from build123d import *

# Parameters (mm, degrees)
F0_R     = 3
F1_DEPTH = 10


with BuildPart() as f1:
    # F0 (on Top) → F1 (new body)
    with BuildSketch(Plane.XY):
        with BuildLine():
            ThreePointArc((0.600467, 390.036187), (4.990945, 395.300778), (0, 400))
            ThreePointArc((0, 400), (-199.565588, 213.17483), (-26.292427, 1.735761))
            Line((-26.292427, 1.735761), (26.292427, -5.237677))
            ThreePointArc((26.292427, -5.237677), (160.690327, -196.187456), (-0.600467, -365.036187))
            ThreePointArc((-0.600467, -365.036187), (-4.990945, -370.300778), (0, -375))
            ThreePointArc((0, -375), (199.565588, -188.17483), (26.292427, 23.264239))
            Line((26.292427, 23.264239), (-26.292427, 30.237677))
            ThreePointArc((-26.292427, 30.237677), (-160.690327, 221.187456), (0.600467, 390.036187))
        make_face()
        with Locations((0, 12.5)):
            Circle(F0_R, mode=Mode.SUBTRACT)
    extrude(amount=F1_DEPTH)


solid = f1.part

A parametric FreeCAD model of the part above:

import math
import FreeCAD as App
import Part
import Sketcher

doc = App.newDocument("Part")
body = doc.addObject("PartDesign::Body", "Body")

sketch1 = doc.addObject("Sketcher::SketchObject", "Sketch")
body.addObject(sketch1)
sketch1.AttachmentSupport = (doc.XY_Plane, [""])
sketch1.MapMode = "FlatFace"
sketch1.addGeometry([
    Part.ArcOfCircle(Part.Circle(App.Vector(0, 395, 0), App.Vector(0, 0, 1), 5), math.radians(-83), math.radians(90)),
    Part.ArcOfCircle(Part.Circle(App.Vector(0, 200, 0), App.Vector(0, 0, 1), 200), math.radians(90), math.radians(262)),
    Part.LineSegment(App.Vector(-26.3, 1.7, 0), App.Vector(26.3, -5.2, 0)),
    Part.ArcOfCircle(Part.Circle(App.Vector(-22.7, -182.5, 0), App.Vector(0, 0, 1), 183.9), math.radians(-83), math.radians(75)),
    Part.ArcOfCircle(Part.Circle(App.Vector(0, -370, 0), App.Vector(0, 0, 1), 5), math.radians(97), math.radians(270)),
    Part.ArcOfCircle(Part.Circle(App.Vector(0, -175, 0), App.Vector(0, 0, 1), 200), math.radians(-90), math.radians(82)),
    Part.LineSegment(App.Vector(26.3, 23.3, 0), App.Vector(-26.3, 30.2, 0)),
    Part.ArcOfCircle(Part.Circle(App.Vector(22.7, 207.5, 0), App.Vector(0, 0, 1), 183.9), math.radians(97), math.radians(255)),
    Part.Circle(App.Vector(0, 12.5, 0), App.Vector(0, 0, 1), 3),
], False)
sketch1.addConstraint([
    Sketcher.Constraint("Tangent", 0, 2, 1, 1),
    Sketcher.Constraint("Tangent", 1, 2, 2, 1),
    Sketcher.Constraint("Coincident", 2, 2, 3, 2),
    Sketcher.Constraint("Tangent", 3, 1, 4, 1),
    Sketcher.Constraint("Tangent", 4, 2, 5, 1),
    Sketcher.Constraint("Tangent", 5, 2, 6, 1),
    Sketcher.Constraint("Coincident", 6, 2, 7, 2),
    Sketcher.Constraint("Tangent", 7, 1, 0, 1),
    Sketcher.Constraint("Equal", 0, 4),
    Sketcher.Constraint("Equal", 1, 5),
    Sketcher.Constraint("Equal", 3, 7),
    Sketcher.Constraint("PointOnObject", 0, 3, -2),
    Sketcher.Constraint("PointOnObject", 1, 3, -2),
    Sketcher.Constraint("PointOnObject", 4, 3, -2),
    Sketcher.Constraint("PointOnObject", 5, 3, -2),
    Sketcher.Constraint("PointOnObject", 8, 3, -2),
    Sketcher.Constraint("Parallel", 2, 6),
    Sketcher.Constraint("Vertical", 2, 2, 5, 2),
    Sketcher.Constraint("Vertical", 1, 2, 6, 2),
    Sketcher.Constraint("Diameter", 8, 6.0),
    Sketcher.Constraint("Radius", 0, 5.0),
    Sketcher.Constraint("Radius", 1, 200.0),
    Sketcher.Constraint("DistanceY", -1, 1, 0, 3, 395.0),
    Sketcher.Constraint("DistanceY", 4, 3, -1, 1, 370.0),
    Sketcher.Constraint("DistanceY", -1, 1, 8, 3, 12.5),
    Sketcher.Constraint("Radius", 3, 183.885768),
    Sketcher.Constraint("DistanceY", -1, 1, 1, 2, 1.735761),
])
pad1 = doc.addObject("PartDesign::Pad", "Pad")
body.addObject(pad1)
pad1.Profile = sketch1
pad1.Length = 10

doc.recompute()
